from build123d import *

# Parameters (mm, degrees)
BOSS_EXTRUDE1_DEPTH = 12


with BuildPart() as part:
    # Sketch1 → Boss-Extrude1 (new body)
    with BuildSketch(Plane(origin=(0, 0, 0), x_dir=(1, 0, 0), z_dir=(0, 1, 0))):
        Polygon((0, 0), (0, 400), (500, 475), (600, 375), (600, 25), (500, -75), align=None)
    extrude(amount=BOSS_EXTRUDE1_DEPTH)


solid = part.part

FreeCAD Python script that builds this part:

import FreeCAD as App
import Part
import Sketcher
Q = App.Units.Quantity

doc = App.newDocument("Part")
body = doc.addObject("PartDesign::Body", "Body")

sketch1 = body.newObject("Sketcher::SketchObject", "Sketch")
sketch1.AttachmentSupport = (doc.getObject("XZ_Plane"), [""])
sketch1.MapMode = "FlatFace"
sketch1.addGeometry([
    Part.LineSegment(App.Vector(0, -400, 0), App.Vector(0, 0, 0)),
    Part.LineSegment(App.Vector(0, 0, 0), App.Vector(500, 75, 0)),
    Part.LineSegment(App.Vector(500, 75, 0), App.Vector(600, -25, 0)),
    Part.LineSegment(App.Vector(600, -25, 0), App.Vector(600, -375, 0)),
    Part.LineSegment(App.Vector(600, -375, 0), App.Vector(500, -475, 0)),
    Part.LineSegment(App.Vector(500, -475, 0), App.Vector(0, -400, 0)),
], False)
sketch1.addConstraint([
    Sketcher.Constraint("Coincident", 0, 2, 1, 1),
    Sketcher.Constraint("Coincident", 1, 2, 2, 1),
    Sketcher.Constraint("Coincident", 2, 2, 3, 1),
    Sketcher.Constraint("Coincident", 3, 2, 4, 1),
    Sketcher.Constraint("Coincident", 4, 2, 5, 1),
    Sketcher.Constraint("Coincident", 5, 2, 0, 1),
    Sketcher.Constraint("Vertical", 0),
    Sketcher.Constraint("Vertical", 3),
    Sketcher.Constraint("Coincident", 0, 2, -1, 1),
    Sketcher.Constraint("Perpendicular", 2, 4),
    Sketcher.Constraint("Vertical", 1, 2, 4, 2),
    Sketcher.Constraint("Equal", 2, 4),
    Sketcher.Constraint("Equal", 1, 5),
    Sketcher.Constraint("DistanceY", 0, 1, 0, 2, Q("400 mm")),
    Sketcher.Constraint("DistanceY", 3, 2, 3, 1, Q("350 mm")),
    Sketcher.Constraint("DistanceX", -1, 1, 1, 2, Q("500 mm")),
    Sketcher.Constraint("DistanceY", -1, 1, 1, 2, Q("75 mm")),
])
pad1 = body.newObject("PartDesign::Pad", "Pad")
pad1.Profile = sketch1
pad1.Length = 12
pad1.Reversed = True

doc.recompute()
